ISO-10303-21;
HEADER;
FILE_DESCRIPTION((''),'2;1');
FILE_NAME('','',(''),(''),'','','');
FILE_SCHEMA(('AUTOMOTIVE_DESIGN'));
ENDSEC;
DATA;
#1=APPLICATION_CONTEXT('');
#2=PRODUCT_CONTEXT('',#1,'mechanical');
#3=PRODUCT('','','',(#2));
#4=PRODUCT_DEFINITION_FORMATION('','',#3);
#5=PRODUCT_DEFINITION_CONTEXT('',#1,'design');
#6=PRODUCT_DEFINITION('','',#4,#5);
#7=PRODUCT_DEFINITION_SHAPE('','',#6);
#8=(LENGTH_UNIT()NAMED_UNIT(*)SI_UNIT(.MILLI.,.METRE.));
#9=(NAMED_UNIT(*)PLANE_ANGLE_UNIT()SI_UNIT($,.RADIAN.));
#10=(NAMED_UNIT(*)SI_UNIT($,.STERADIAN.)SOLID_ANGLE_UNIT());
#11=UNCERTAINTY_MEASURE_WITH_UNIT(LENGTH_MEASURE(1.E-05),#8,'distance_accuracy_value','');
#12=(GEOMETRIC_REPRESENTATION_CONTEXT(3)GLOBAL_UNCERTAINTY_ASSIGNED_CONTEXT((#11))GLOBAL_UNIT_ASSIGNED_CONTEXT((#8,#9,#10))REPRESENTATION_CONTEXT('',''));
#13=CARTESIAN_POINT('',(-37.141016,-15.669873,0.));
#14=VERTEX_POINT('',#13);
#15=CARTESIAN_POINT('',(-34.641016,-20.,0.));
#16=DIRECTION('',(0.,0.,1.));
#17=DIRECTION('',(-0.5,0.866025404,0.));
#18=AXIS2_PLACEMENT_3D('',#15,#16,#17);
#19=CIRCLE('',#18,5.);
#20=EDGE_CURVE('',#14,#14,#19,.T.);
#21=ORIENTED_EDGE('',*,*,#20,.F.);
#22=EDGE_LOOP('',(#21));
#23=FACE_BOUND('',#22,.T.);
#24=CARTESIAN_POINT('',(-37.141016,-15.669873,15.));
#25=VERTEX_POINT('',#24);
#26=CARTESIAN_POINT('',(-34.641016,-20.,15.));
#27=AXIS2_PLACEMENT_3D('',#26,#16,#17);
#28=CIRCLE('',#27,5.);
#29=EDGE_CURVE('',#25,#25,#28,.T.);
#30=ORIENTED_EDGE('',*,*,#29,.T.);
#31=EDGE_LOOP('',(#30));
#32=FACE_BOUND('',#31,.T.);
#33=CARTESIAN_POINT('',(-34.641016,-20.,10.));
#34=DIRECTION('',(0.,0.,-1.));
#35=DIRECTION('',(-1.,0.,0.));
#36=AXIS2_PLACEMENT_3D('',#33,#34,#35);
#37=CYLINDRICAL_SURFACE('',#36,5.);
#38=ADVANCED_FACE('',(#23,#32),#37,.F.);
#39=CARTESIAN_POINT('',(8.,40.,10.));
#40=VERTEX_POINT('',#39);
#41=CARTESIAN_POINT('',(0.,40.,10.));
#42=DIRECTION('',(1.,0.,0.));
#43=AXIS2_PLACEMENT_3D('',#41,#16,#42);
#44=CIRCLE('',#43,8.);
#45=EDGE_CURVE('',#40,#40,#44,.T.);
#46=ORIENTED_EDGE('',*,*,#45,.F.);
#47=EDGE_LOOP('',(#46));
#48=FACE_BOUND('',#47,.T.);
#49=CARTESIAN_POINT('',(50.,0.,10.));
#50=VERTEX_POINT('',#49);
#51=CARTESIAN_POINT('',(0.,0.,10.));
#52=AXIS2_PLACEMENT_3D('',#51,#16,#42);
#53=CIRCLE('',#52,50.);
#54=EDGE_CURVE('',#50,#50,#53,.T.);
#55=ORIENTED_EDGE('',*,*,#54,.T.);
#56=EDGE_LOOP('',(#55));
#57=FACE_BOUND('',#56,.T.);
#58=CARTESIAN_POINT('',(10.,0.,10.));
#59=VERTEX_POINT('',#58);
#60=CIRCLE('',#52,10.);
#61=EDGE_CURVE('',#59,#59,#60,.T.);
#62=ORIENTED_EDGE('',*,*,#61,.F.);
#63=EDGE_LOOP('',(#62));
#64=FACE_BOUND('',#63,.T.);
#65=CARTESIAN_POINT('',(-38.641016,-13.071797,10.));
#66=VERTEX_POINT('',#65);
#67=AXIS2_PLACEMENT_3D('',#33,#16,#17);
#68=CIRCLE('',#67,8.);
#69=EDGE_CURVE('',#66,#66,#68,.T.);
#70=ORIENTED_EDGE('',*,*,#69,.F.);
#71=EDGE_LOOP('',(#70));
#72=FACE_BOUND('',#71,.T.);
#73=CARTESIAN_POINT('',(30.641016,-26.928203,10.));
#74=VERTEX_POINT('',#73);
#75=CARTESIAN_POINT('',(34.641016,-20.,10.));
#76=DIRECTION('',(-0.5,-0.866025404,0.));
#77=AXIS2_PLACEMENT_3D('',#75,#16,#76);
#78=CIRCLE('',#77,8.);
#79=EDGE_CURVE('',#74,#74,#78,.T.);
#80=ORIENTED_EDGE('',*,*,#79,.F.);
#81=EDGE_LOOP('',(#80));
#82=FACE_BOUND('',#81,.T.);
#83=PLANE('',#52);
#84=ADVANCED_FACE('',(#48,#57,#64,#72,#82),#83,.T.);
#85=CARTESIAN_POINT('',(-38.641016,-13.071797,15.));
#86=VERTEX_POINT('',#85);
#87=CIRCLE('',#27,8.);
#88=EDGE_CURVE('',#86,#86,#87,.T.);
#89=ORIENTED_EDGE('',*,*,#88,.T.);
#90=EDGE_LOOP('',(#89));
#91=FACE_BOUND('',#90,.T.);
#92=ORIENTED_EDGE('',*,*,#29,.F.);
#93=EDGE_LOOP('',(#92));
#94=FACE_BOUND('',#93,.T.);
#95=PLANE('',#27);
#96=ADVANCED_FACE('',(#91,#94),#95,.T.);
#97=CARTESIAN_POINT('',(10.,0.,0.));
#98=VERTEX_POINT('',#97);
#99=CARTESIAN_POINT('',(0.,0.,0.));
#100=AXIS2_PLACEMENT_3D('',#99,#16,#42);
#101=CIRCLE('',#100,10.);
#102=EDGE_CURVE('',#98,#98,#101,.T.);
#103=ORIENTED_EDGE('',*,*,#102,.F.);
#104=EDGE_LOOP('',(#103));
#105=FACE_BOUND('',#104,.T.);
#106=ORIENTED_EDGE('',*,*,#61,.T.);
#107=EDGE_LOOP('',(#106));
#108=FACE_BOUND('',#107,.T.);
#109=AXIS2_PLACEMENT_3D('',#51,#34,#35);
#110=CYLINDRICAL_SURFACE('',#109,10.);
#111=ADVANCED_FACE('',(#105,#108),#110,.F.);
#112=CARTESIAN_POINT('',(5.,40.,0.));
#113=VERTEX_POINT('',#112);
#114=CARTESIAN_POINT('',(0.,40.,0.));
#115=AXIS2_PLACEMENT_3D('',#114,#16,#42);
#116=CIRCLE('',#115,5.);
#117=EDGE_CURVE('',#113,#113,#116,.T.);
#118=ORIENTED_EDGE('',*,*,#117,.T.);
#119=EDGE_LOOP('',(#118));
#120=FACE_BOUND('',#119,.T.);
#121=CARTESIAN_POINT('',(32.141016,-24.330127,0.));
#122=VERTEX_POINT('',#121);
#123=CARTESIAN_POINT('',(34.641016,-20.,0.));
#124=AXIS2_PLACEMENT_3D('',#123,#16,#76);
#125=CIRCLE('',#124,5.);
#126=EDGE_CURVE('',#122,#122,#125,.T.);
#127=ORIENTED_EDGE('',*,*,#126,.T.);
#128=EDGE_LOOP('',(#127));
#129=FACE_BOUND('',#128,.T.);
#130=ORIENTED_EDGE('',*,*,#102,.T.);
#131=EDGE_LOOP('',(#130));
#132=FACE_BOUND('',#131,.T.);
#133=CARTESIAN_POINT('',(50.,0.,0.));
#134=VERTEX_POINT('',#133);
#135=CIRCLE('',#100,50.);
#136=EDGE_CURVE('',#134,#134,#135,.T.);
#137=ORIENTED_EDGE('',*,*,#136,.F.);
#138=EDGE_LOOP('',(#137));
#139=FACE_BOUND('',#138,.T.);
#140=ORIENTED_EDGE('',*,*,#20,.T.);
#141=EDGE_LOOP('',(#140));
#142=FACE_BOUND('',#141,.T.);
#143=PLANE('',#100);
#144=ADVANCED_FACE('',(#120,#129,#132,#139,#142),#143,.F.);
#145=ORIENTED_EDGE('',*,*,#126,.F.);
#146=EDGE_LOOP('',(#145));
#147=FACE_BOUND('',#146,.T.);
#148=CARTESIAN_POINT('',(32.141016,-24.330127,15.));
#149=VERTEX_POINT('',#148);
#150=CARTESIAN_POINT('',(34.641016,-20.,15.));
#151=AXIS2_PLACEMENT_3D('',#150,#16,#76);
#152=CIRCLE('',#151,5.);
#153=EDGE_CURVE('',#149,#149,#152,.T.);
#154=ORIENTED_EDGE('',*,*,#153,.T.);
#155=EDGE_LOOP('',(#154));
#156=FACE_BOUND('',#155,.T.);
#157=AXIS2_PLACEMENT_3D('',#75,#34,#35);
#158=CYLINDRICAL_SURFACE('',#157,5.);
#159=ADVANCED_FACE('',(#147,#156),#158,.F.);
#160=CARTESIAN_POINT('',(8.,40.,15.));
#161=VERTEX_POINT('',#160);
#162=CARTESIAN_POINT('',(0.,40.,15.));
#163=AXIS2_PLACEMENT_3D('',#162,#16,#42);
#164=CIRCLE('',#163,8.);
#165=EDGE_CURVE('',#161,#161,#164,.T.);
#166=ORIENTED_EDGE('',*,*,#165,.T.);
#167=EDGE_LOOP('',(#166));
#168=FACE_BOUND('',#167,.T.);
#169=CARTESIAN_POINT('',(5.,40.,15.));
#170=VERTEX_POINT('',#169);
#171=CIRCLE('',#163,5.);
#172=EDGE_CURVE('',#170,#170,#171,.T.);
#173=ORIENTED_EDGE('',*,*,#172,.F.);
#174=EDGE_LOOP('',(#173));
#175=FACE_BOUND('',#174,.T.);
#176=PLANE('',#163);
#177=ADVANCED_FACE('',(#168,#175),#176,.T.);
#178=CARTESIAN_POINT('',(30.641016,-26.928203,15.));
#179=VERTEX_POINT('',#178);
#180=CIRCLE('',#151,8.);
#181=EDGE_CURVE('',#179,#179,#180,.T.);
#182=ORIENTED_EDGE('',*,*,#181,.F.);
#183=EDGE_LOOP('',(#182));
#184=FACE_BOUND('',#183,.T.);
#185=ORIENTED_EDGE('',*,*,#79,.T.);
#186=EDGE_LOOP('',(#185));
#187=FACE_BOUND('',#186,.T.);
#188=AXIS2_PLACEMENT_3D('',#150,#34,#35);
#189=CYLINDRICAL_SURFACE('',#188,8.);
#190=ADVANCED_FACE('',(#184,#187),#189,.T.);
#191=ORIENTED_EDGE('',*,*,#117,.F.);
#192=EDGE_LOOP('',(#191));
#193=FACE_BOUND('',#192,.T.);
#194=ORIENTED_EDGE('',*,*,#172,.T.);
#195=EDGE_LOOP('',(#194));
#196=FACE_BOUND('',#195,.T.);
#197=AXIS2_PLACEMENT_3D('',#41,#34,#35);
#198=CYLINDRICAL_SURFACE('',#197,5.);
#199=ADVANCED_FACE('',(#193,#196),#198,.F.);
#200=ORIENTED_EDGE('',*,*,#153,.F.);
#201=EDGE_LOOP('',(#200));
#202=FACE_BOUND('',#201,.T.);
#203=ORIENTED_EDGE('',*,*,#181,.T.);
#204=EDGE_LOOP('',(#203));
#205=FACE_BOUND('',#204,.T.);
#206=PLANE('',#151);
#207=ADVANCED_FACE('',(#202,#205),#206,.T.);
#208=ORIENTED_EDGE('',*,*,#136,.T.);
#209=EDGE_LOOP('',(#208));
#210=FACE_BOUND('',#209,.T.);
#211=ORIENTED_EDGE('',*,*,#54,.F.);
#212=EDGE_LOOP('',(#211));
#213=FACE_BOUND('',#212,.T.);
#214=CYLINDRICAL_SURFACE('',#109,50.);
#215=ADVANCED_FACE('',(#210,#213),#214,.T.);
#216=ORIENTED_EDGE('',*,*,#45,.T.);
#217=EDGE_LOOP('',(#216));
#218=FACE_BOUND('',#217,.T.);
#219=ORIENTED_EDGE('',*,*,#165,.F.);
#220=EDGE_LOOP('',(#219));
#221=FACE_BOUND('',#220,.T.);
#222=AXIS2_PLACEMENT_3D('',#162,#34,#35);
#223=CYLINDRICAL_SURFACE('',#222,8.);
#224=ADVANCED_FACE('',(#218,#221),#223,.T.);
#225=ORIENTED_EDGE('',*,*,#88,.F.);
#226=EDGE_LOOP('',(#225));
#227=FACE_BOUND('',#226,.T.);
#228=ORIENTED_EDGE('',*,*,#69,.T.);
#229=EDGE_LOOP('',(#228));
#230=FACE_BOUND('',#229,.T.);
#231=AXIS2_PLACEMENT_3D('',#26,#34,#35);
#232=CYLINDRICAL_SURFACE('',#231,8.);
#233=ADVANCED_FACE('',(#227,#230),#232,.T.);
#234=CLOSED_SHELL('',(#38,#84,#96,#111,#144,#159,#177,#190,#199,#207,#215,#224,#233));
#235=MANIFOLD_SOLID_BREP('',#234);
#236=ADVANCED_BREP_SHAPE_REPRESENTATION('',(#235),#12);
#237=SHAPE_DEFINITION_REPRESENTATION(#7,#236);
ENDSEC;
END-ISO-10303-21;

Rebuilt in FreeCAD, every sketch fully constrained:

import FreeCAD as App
import Part
import Sketcher
from FreeCAD import Vector

doc = App.newDocument("Part")
body = doc.addObject("PartDesign::Body", "Body")

# Sketch on XY plane
sketch1 = body.newObject("Sketcher::SketchObject", "Sketch")
sketch1.AttachmentSupport = (doc.getObject("XY_Plane"), [""])
sketch1.MapMode = "FlatFace"
sketch1.addGeometry([
    Part.Circle(Vector(0, 0, 0), Vector(0, 0, 1), 50),
    Part.Circle(Vector(0, 0, 0), Vector(0, 0, 1), 10),
], False)
sketch1.addConstraint([
    Sketcher.Constraint("Coincident", 0, 3, -1, 1),
    Sketcher.Constraint("Coincident", 1, 3, -1, 1),
    Sketcher.Constraint("Diameter", 0, 100.0),
    Sketcher.Constraint("Diameter", 1, 20.0),
])
pad1 = body.newObject("PartDesign::Pad", "Pad")
pad1.Profile = sketch1
pad1.Length = 10

# Sketch on XY plane
sketch2 = body.newObject("Sketcher::SketchObject", "Sketch001")
sketch2.AttachmentSupport = (doc.getObject("XY_Plane"), [""])
sketch2.MapMode = "FlatFace"
sketch2.addGeometry(Part.Circle(Vector(0, 40, 0), Vector(0, 0, 1), 5), False)
sketch2.addConstraint([
    Sketcher.Constraint("PointOnObject", 0, 3, -2),
    Sketcher.Constraint("Diameter", 0, 10.0),
    Sketcher.Constraint("DistanceY", -1, 1, 0, 3, 40.0),
])
pocket1 = body.newObject("PartDesign::Pocket", "Pocket")
pocket1.Profile = sketch2
pocket1.Length = 10
pocket1.Reversed = True
doc.recompute()

polarpattern = body.newObject("PartDesign::PolarPattern", "PolarPattern")
polarpattern.Originals = [pocket1]
polarpattern.Axis = (doc.getObject("Z_Axis"), [""])
polarpattern.Angle = 360
polarpattern.Occurrences = 3
body.Tip = polarpattern

# Sketch on XY plane
sketch3 = body.newObject("Sketcher::SketchObject", "Sketch002")
sketch3.AttachmentSupport = (doc.getObject("XY_Plane"), [""])
sketch3.MapMode = "FlatFace"
sketch3.AttachmentOffset = App.Placement(Vector(0, 0, 10), App.Rotation())
sketch3.addGeometry([
    Part.Circle(Vector(0, 40, 0), Vector(0, 0, 1), 8),
    Part.Circle(Vector(0, 40, 0), Vector(0, 0, 1), 5),
], False)
sketch3.addConstraint([
    Sketcher.Constraint("Coincident", 1, 3, 0, 3),
    Sketcher.Constraint("PointOnObject", 0, 3, -2),
    Sketcher.Constraint("Diameter", 0, 16.0),
    Sketcher.Constraint("Diameter", 1, 10.0),
    Sketcher.Constraint("DistanceY", -1, 1, 0, 3, 40.0),
])
pad2 = body.newObject("PartDesign::Pad", "Pad001")
pad2.Profile = sketch3
pad2.Length = 5
doc.recompute()

polarpattern2 = body.newObject("PartDesign::PolarPattern", "PolarPattern001")
polarpattern2.Originals = [pad2]
polarpattern2.Axis = (doc.getObject("Z_Axis"), [""])
polarpattern2.Angle = 360
polarpattern2.Occurrences = 3
body.Tip = polarpattern2

doc.recompute()
